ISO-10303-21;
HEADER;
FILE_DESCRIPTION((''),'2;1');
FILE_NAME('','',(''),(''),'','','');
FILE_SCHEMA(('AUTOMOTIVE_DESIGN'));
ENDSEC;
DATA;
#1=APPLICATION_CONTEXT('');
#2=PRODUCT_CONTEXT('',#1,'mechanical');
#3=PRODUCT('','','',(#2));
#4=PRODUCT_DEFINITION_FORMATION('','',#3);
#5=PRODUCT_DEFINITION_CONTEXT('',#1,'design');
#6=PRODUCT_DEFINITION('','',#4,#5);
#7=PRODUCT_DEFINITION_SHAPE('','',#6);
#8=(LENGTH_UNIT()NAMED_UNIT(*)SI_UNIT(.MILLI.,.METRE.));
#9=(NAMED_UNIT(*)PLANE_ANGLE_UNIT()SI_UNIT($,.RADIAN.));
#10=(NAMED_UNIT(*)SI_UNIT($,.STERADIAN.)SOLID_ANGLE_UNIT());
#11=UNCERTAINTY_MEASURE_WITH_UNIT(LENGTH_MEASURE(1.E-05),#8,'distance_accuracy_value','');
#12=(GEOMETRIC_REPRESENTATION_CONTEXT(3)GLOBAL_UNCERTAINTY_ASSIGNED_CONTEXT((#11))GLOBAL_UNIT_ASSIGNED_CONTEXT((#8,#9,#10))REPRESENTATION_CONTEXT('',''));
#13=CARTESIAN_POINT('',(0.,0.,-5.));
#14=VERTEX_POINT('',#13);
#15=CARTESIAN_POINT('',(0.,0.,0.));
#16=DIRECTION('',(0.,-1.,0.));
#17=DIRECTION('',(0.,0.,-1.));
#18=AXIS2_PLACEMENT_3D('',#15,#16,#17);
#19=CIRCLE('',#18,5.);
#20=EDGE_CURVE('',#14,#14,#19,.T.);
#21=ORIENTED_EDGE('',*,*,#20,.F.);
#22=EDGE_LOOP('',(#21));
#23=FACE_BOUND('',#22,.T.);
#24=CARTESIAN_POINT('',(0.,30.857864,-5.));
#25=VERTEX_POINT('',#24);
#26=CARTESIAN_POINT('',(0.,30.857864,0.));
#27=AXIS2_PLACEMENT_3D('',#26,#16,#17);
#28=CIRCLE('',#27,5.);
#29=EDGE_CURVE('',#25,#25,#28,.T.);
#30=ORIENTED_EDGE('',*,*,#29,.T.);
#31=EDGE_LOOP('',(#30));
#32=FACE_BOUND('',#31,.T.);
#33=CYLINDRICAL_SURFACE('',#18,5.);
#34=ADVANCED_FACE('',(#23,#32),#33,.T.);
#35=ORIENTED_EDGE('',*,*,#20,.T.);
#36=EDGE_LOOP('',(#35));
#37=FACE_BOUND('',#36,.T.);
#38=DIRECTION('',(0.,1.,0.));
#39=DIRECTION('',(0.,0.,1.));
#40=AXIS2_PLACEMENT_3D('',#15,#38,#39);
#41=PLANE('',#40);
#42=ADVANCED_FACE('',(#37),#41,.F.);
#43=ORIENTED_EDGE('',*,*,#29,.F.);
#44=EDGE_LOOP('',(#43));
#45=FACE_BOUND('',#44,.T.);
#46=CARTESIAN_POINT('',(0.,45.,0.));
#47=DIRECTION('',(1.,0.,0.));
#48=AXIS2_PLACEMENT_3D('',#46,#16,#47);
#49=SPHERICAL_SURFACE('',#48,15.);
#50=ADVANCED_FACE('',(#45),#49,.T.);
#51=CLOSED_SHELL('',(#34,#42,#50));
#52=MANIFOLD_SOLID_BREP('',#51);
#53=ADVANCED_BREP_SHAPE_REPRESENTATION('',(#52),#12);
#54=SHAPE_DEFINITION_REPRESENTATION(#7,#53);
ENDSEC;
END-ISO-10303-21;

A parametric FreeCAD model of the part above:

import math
import FreeCAD as App
import Part
import Sketcher
Q = App.Units.Quantity

doc = App.newDocument("Part")
params = doc.addObject("Spreadsheet::Sheet", "Params")
for row, (alias, value) in enumerate([
    ("sketch1_radius", "15 mm"),
    ("sketch1_width", "5 mm"),
    ("sketch1_height", "60 mm"),
    ("revolution_angle", "360 deg"),
], start=1):
    params.set(f"A{row}", alias)
    params.set(f"B{row}", "=" + value)
    params.setAlias(f"B{row}", alias)

body = doc.addObject("PartDesign::Body", "Body")

# Sketch on XY plane
sketch1 = body.newObject("Sketcher::SketchObject", "Sketch")
sketch1.AttachmentSupport = (doc.getObject("XY_Plane"), [""])
sketch1.MapMode = "FlatFace"
sketch1.addGeometry(Part.LineSegment(App.Vector(-5, 0, 0), App.Vector(0, 0, 0)), False)
sketch1.addGeometry(Part.LineSegment(App.Vector(0, 0, 0), App.Vector(0, 60, 0)), False)
sketch1.addGeometry(Part.ArcOfCircle(Part.Circle(App.Vector(0, 45, 0), App.Vector(0, 0, 1), 15), math.radians(90), math.radians(251)), False)
sketch1.addGeometry(Part.LineSegment(App.Vector(-5, 31, 0), App.Vector(-5, 0, 0)), False)
sketch1.addConstraint(Sketcher.Constraint("Coincident", 0, 2, 1, 1))
sketch1.addConstraint(Sketcher.Constraint("Coincident", 1, 2, 2, 1))
sketch1.addConstraint(Sketcher.Constraint("Coincident", 2, 2, 3, 1))
sketch1.addConstraint(Sketcher.Constraint("Coincident", 3, 2, 0, 1))
sketch1.addConstraint(Sketcher.Constraint("Horizontal", 0))
sketch1.addConstraint(Sketcher.Constraint("Vertical", 1))
sketch1.addConstraint(Sketcher.Constraint("Vertical", 3))
sketch1.addConstraint(Sketcher.Constraint("Coincident", 0, 2, -1, 1))
sketch1.addConstraint(Sketcher.Constraint("PointOnObject", 2, 3, -2))
sketch1.addConstraint(Sketcher.Constraint("Radius", 2, Q("15 mm")))
sketch1.addConstraint(Sketcher.Constraint("DistanceX", 0, 1, 0, 2, Q("5 mm")))
sketch1.addConstraint(Sketcher.Constraint("DistanceY", 1, 1, 1, 2, Q("60 mm")))
sketch1.setExpression("Constraints[9]", "Params.sketch1_radius")
sketch1.setExpression("Constraints[10]", "Params.sketch1_width")
sketch1.setExpression("Constraints[11]", "Params.sketch1_height")
revolution = body.newObject("PartDesign::Revolution", "Revolution")
revolution.Profile = sketch1
revolution.ReferenceAxis = (sketch1, ["V_Axis"])
revolution.setExpression("Angle", "Params.revolution_angle")

doc.recompute()
